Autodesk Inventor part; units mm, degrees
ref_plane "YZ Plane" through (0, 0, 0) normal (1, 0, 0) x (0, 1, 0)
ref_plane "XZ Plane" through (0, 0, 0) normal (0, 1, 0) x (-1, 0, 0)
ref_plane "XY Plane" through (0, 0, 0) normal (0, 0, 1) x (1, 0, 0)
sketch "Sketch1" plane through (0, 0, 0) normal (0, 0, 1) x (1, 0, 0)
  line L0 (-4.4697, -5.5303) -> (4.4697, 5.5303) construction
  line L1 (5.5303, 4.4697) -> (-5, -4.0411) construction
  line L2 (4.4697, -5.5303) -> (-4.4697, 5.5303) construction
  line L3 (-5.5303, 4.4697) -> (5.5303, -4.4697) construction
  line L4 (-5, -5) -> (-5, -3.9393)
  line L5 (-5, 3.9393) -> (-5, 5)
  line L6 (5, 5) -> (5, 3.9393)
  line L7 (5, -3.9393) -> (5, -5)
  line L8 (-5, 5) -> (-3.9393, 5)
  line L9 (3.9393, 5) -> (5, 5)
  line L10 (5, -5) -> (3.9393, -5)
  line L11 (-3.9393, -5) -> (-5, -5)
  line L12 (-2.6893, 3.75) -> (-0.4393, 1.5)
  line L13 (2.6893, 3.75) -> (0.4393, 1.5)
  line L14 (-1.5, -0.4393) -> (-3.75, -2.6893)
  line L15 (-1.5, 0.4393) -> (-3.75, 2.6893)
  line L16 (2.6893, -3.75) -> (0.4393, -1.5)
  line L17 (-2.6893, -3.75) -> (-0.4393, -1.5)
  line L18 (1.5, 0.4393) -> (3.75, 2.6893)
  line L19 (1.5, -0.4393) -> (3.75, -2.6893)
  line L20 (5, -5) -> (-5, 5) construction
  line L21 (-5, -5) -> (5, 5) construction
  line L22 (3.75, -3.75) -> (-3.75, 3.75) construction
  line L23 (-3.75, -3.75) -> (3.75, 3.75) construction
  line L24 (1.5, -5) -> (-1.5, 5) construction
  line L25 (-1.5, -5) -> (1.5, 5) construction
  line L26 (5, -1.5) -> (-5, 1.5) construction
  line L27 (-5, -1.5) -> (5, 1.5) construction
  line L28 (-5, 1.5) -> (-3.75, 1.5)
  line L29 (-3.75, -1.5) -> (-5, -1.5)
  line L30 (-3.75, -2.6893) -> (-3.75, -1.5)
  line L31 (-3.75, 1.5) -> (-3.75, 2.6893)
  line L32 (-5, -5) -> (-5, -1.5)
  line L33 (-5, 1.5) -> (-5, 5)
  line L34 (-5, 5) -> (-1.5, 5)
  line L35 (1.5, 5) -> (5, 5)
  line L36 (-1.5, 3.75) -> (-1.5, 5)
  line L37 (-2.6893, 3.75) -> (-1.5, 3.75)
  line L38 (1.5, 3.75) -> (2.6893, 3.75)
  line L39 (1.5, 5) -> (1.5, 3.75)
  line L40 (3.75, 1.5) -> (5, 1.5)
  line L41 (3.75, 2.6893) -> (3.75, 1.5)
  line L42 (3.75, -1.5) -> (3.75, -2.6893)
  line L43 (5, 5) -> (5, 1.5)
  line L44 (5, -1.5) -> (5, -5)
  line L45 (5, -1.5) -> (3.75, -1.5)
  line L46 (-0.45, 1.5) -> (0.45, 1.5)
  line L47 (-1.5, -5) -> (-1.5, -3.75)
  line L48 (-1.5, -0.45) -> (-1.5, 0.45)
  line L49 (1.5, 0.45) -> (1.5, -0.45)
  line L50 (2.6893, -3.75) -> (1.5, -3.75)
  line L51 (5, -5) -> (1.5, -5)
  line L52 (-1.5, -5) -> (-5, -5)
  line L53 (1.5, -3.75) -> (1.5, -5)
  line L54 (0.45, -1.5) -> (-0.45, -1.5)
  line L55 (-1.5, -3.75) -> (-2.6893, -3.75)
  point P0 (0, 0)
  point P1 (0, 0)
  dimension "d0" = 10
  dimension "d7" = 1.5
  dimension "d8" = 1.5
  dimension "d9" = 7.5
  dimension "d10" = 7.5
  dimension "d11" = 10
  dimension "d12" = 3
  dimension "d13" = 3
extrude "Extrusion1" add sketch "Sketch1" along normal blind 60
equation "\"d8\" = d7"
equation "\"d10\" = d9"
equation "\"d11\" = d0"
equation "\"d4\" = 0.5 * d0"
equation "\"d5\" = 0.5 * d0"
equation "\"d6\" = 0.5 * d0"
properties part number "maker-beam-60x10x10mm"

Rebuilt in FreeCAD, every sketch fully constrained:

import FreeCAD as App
import Part
import Sketcher

V = App.Vector

doc = App.newDocument("Part")
body = doc.addObject("PartDesign::Body", "Body")

# Sketch on XY plane
sketch1 = body.newObject("Sketcher::SketchObject", "Sketch")
sketch1.AttachmentSupport = (doc.getObject("XY_Plane"), [""])
sketch1.MapMode = "FlatFace"
sketch1.addGeometry(Part.LineSegment(V(-5, -1.5, 0), V(-5, -5, 0)), False)
sketch1.addGeometry(Part.LineSegment(V(-5, -5, 0), V(-1.5, -5, 0)), False)
sketch1.addGeometry(Part.LineSegment(V(-1.5, -5, 0), V(-1.5, -3.8, 0)), False)
sketch1.addGeometry(Part.LineSegment(V(-1.5, -3.8, 0), V(-2.7, -3.8, 0)), False)
sketch1.addGeometry(Part.LineSegment(V(-2.7, -3.8, 0), V(-0.4, -1.5, 0)), False)
sketch1.addGeometry(Part.LineSegment(V(-0.4, -1.5, 0), V(0.4, -1.5, 0)), False)
sketch1.addGeometry(Part.LineSegment(V(0.4, -1.5, 0), V(2.7, -3.8, 0)), False)
sketch1.addGeometry(Part.LineSegment(V(2.7, -3.8, 0), V(1.5, -3.8, 0)), False)
sketch1.addGeometry(Part.LineSegment(V(1.5, -3.8, 0), V(1.5, -5, 0)), False)
sketch1.addGeometry(Part.LineSegment(V(1.5, -5, 0), V(5, -5, 0)), False)
sketch1.addGeometry(Part.LineSegment(V(5, -5, 0), V(5, -1.5, 0)), False)
sketch1.addGeometry(Part.LineSegment(V(5, -1.5, 0), V(3.8, -1.5, 0)), False)
sketch1.addGeometry(Part.LineSegment(V(3.8, -1.5, 0), V(3.8, -2.7, 0)), False)
sketch1.addGeometry(Part.LineSegment(V(3.8, -2.7, 0), V(1.5, -0.4, 0)), False)
sketch1.addGeometry(Part.LineSegment(V(1.5, -0.4, 0), V(1.5, 0.4, 0)), False)
sketch1.addGeometry(Part.LineSegment(V(1.5, 0.4, 0), V(3.8, 2.7, 0)), False)
sketch1.addGeometry(Part.LineSegment(V(3.8, 2.7, 0), V(3.8, 1.5, 0)), False)
sketch1.addGeometry(Part.LineSegment(V(3.8, 1.5, 0), V(5, 1.5, 0)), False)
sketch1.addGeometry(Part.LineSegment(V(5, 1.5, 0), V(5, 5, 0)), False)
sketch1.addGeometry(Part.LineSegment(V(5, 5, 0), V(1.5, 5, 0)), False)
sketch1.addGeometry(Part.LineSegment(V(1.5, 5, 0), V(1.5, 3.8, 0)), False)
sketch1.addGeometry(Part.LineSegment(V(1.5, 3.8, 0), V(2.7, 3.8, 0)), False)
sketch1.addGeometry(Part.LineSegment(V(2.7, 3.8, 0), V(0.4, 1.5, 0)), False)
sketch1.addGeometry(Part.LineSegment(V(0.4, 1.5, 0), V(-0.4, 1.5, 0)), False)
sketch1.addGeometry(Part.LineSegment(V(-0.4, 1.5, 0), V(-2.7, 3.8, 0)), False)
sketch1.addGeometry(Part.LineSegment(V(-2.7, 3.8, 0), V(-1.5, 3.8, 0)), False)
sketch1.addGeometry(Part.LineSegment(V(-1.5, 3.8, 0), V(-1.5, 5, 0)), False)
sketch1.addGeometry(Part.LineSegment(V(-1.5, 5, 0), V(-5, 5, 0)), False)
sketch1.addGeometry(Part.LineSegment(V(-5, 5, 0), V(-5, 1.5, 0)), False)
sketch1.addGeometry(Part.LineSegment(V(-5, 1.5, 0), V(-3.8, 1.5, 0)), False)
sketch1.addGeometry(Part.LineSegment(V(-3.8, 1.5, 0), V(-3.8, 2.7, 0)), False)
sketch1.addGeometry(Part.LineSegment(V(-3.8, 2.7, 0), V(-1.5, 0.4, 0)), False)
sketch1.addGeometry(Part.LineSegment(V(-1.5, 0.4, 0), V(-1.5, -0.4, 0)), False)
sketch1.addGeometry(Part.LineSegment(V(-1.5, -0.4, 0), V(-3.8, -2.7, 0)), False)
sketch1.addGeometry(Part.LineSegment(V(-3.8, -2.7, 0), V(-3.8, -1.5, 0)), False)
sketch1.addGeometry(Part.LineSegment(V(-3.8, -1.5, 0), V(-5, -1.5, 0)), False)
sketch1.addConstraint(Sketcher.Constraint("Coincident", 0, 2, 1, 1))
sketch1.addConstraint(Sketcher.Constraint("Coincident", 1, 2, 2, 1))
sketch1.addConstraint(Sketcher.Constraint("Coincident", 2, 2, 3, 1))
sketch1.addConstraint(Sketcher.Constraint("Coincident", 3, 2, 4, 1))
sketch1.addConstraint(Sketcher.Constraint("Coincident", 4, 2, 5, 1))
sketch1.addConstraint(Sketcher.Constraint("Coincident", 5, 2, 6, 1))
sketch1.addConstraint(Sketcher.Constraint("Coincident", 6, 2, 7, 1))
sketch1.addConstraint(Sketcher.Constraint("Coincident", 7, 2, 8, 1))
sketch1.addConstraint(Sketcher.Constraint("Coincident", 8, 2, 9, 1))
sketch1.addConstraint(Sketcher.Constraint("Coincident", 9, 2, 10, 1))
sketch1.addConstraint(Sketcher.Constraint("Coincident", 10, 2, 11, 1))
sketch1.addConstraint(Sketcher.Constraint("Coincident", 11, 2, 12, 1))
sketch1.addConstraint(Sketcher.Constraint("Coincident", 12, 2, 13, 1))
sketch1.addConstraint(Sketcher.Constraint("Coincident", 13, 2, 14, 1))
sketch1.addConstraint(Sketcher.Constraint("Coincident", 14, 2, 15, 1))
sketch1.addConstraint(Sketcher.Constraint("Coincident", 15, 2, 16, 1))
sketch1.addConstraint(Sketcher.Constraint("Coincident", 16, 2, 17, 1))
sketch1.addConstraint(Sketcher.Constraint("Coincident", 17, 2, 18, 1))
sketch1.addConstraint(Sketcher.Constraint("Coincident", 18, 2, 19, 1))
sketch1.addConstraint(Sketcher.Constraint("Coincident", 19, 2, 20, 1))
sketch1.addConstraint(Sketcher.Constraint("Coincident", 20, 2, 21, 1))
sketch1.addConstraint(Sketcher.Constraint("Coincident", 21, 2, 22, 1))
sketch1.addConstraint(Sketcher.Constraint("Coincident", 22, 2, 23, 1))
sketch1.addConstraint(Sketcher.Constraint("Coincident", 23, 2, 24, 1))
sketch1.addConstraint(Sketcher.Constraint("Coincident", 24, 2, 25, 1))
sketch1.addConstraint(Sketcher.Constraint("Coincident", 25, 2, 26, 1))
sketch1.addConstraint(Sketcher.Constraint("Coincident", 26, 2, 27, 1))
sketch1.addConstraint(Sketcher.Constraint("Coincident", 27, 2, 28, 1))
sketch1.addConstraint(Sketcher.Constraint("Coincident", 28, 2, 29, 1))
sketch1.addConstraint(Sketcher.Constraint("Coincident", 29, 2, 30, 1))
sketch1.addConstraint(Sketcher.Constraint("Coincident", 30, 2, 31, 1))
sketch1.addConstraint(Sketcher.Constraint("Coincident", 31, 2, 32, 1))
sketch1.addConstraint(Sketcher.Constraint("Coincident", 32, 2, 33, 1))
sketch1.addConstraint(Sketcher.Constraint("Coincident", 33, 2, 34, 1))
sketch1.addConstraint(Sketcher.Constraint("Coincident", 34, 2, 35, 1))
sketch1.addConstraint(Sketcher.Constraint("Coincident", 35, 2, 0, 1))
sketch1.addConstraint(Sketcher.Constraint("Vertical", 0))
sketch1.addConstraint(Sketcher.Constraint("Horizontal", 1))
sketch1.addConstraint(Sketcher.Constraint("Vertical", 2))
sketch1.addConstraint(Sketcher.Constraint("Horizontal", 3))
sketch1.addConstraint(Sketcher.Constraint("Horizontal", 5))
sketch1.addConstraint(Sketcher.Constraint("Horizontal", 7))
sketch1.addConstraint(Sketcher.Constraint("Vertical", 8))
sketch1.addConstraint(Sketcher.Constraint("Horizontal", 9))
sketch1.addConstraint(Sketcher.Constraint("Vertical", 10))
sketch1.addConstraint(Sketcher.Constraint("Horizontal", 11))
sketch1.addConstraint(Sketcher.Constraint("Vertical", 12))
sketch1.addConstraint(Sketcher.Constraint("Vertical", 14))
sketch1.addConstraint(Sketcher.Constraint("Vertical", 16))
sketch1.addConstraint(Sketcher.Constraint("Horizontal", 17))
sketch1.addConstraint(Sketcher.Constraint("Vertical", 18))
sketch1.addConstraint(Sketcher.Constraint("Horizontal", 19))
sketch1.addConstraint(Sketcher.Constraint("Vertical", 20))
sketch1.addConstraint(Sketcher.Constraint("Horizontal", 21))
sketch1.addConstraint(Sketcher.Constraint("Horizontal", 23))
sketch1.addConstraint(Sketcher.Constraint("Horizontal", 25))
sketch1.addConstraint(Sketcher.Constraint("Vertical", 26))
sketch1.addConstraint(Sketcher.Constraint("Horizontal", 27))
sketch1.addConstraint(Sketcher.Constraint("Vertical", 28))
sketch1.addConstraint(Sketcher.Constraint("Horizontal", 29))
sketch1.addConstraint(Sketcher.Constraint("Vertical", 30))
sketch1.addConstraint(Sketcher.Constraint("Vertical", 32))
sketch1.addConstraint(Sketcher.Constraint("Vertical", 34))
sketch1.addConstraint(Sketcher.Constraint("Horizontal", 35))
sketch1.addConstraint(Sketcher.Constraint("Symmetric", 0, 2, 18, 2, -1, 1))
sketch1.addConstraint(Sketcher.Constraint("Symmetric", 2, 2, 20, 2, -1, 1))
sketch1.addConstraint(Sketcher.Constraint("Symmetric", 4, 2, 22, 2, -1, 1))
sketch1.addConstraint(Sketcher.Constraint("Symmetric", 6, 2, 24, 2, -1, 1))
sketch1.addConstraint(Sketcher.Constraint("Symmetric", 8, 2, 26, 2, -1, 1))
sketch1.addConstraint(Sketcher.Constraint("Symmetric", 10, 2, 28, 2, -1, 1))
sketch1.addConstraint(Sketcher.Constraint("Symmetric", 12, 2, 30, 2, -1, 1))
sketch1.addConstraint(Sketcher.Constraint("Symmetric", 13, 2, 31, 2, -1, 1))
sketch1.addConstraint(Sketcher.Constraint("Symmetric", 15, 2, 33, 2, -1, 1))
sketch1.addConstraint(Sketcher.Constraint("Symmetric", 3, 2, 6, 2, -2))
sketch1.addConstraint(Sketcher.Constraint("Symmetric", 1, 2, 8, 2, -2))
sketch1.addConstraint(Sketcher.Constraint("Symmetric", 17, 2, 28, 2, -2))
sketch1.addConstraint(Sketcher.Constraint("Symmetric", 15, 2, 30, 2, -2))
sketch1.addConstraint(Sketcher.Constraint("Perpendicular", 4, 6))
sketch1.addConstraint(Sketcher.Constraint("Parallel", 6, 13))
sketch1.addConstraint(Sketcher.Constraint("Perpendicular", 13, 15))
sketch1.addConstraint(Sketcher.Constraint("Parallel", 15, 22))
sketch1.addConstraint(Sketcher.Constraint("Perpendicular", 22, 24))
sketch1.addConstraint(Sketcher.Constraint("Perpendicular", 31, 33))
sketch1.addConstraint(Sketcher.Constraint("Horizontal", 5, 2, 10, 2))
sketch1.addConstraint(Sketcher.Constraint("Horizontal", 14, 2, 31, 2))
sketch1.addConstraint(Sketcher.Constraint("Horizontal", 11, 2, 34, 2))
sketch1.addConstraint(Sketcher.Constraint("Vertical", 8, 2, 13, 2))
sketch1.addConstraint(Sketcher.Constraint("Equal", 27, 0))
sketch1.addConstraint(Sketcher.Constraint("Equal", 35, 2))
sketch1.addConstraint(Sketcher.Constraint("Equal", 25, 12))
sketch1.addConstraint(Sketcher.Constraint("Equal", 23, 14))
sketch1.addConstraint(Sketcher.Constraint("DistanceX", 2, 2, 7, 2, 3.0))
sketch1.addConstraint(Sketcher.Constraint("DistanceX", 1, 1, 1, 2, 3.5))
sketch1.addConstraint(Sketcher.Constraint("DistanceX", 11, 2, 11, 1, 1.25))
sketch1.addConstraint(Sketcher.Constraint("DistanceX", 3, 2, 3, 1, 1.1893))
pad1 = body.newObject("PartDesign::Pad", "Pad")
pad1.Profile = sketch1
pad1.Length = 60

doc.recompute()
